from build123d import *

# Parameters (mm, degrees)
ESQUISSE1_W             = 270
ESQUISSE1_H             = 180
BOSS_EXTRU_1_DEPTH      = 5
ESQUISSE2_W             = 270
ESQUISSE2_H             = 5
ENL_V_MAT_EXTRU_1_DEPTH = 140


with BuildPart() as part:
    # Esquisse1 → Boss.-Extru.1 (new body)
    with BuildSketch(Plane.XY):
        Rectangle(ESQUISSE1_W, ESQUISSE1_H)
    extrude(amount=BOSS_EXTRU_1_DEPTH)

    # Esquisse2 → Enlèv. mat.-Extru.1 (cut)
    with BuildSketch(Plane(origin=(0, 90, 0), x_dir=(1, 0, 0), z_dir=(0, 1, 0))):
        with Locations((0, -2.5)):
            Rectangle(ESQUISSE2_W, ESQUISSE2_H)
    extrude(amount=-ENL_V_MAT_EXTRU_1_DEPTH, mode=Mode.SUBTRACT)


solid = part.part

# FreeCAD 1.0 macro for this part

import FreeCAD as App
import Part
import Sketcher

V = App.Vector


def add_polygon(sketch, points):
    """Adds a closed chain of lines whose ends are joined by coincident constraints."""
    first, n = sketch.GeometryCount, len(points)
    for a, b in zip(points, points[1:] + points[:1]):
        sketch.addGeometry(Part.LineSegment(App.Vector(*a, 0), App.Vector(*b, 0)), False)
    for i in range(n):
        sketch.addConstraint(Sketcher.Constraint("Coincident", first + i, 2, first + (i + 1) % n, 1))

doc = App.newDocument("Part")
body = doc.addObject("PartDesign::Body", "Body")

sketch1 = body.newObject("Sketcher::SketchObject", "Sketch")
sketch1.AttachmentSupport = (doc.getObject("XY_Plane"), [""])
sketch1.MapMode = "FlatFace"
add_polygon(sketch1, [(-135, 90), (-135, -90), (135, -90), (135, 90)])
sketch1.addConstraint([
    Sketcher.Constraint("Vertical", 0),
    Sketcher.Constraint("Horizontal", 1),
    Sketcher.Constraint("Vertical", 2),
    Sketcher.Constraint("Horizontal", 3),
    Sketcher.Constraint("Symmetric", 0, 2, 2, 2, -1, 1),
    Sketcher.Constraint("DistanceX", 1, 1, 1, 2, 270.0),
    Sketcher.Constraint("DistanceY", 0, 2, 0, 1, 180.0),
])
pad1 = body.newObject("PartDesign::Pad", "Pad")
pad1.Profile = sketch1
pad1.Length = 5

sketch2 = body.newObject("Sketcher::SketchObject", "Sketch001")
sketch2.AttachmentSupport = (doc.getObject("XZ_Plane"), [""])
sketch2.MapMode = "FlatFace"
sketch2.AttachmentOffset = App.Placement(V(0, 0, -90), App.Rotation())
add_polygon(sketch2, [(-135, 0), (-135, 5), (135, 5), (135, 0)])
sketch2.addConstraint([
    Sketcher.Constraint("Vertical", 0),
    Sketcher.Constraint("Horizontal", 1),
    Sketcher.Constraint("Vertical", 2),
    Sketcher.Constraint("Horizontal", 3),
    Sketcher.Constraint("Symmetric", 2, 2, 3, 2, -1, 1),
    Sketcher.Constraint("DistanceX", 1, 1, 1, 2, 270.0),
    Sketcher.Constraint("DistanceY", 0, 1, 0, 2, 5.0),
])
pocket1 = body.newObject("PartDesign::Pocket", "Pocket")
pocket1.Profile = sketch2
pocket1.Length = 140
pocket1.Reversed = True

doc.recompute()
